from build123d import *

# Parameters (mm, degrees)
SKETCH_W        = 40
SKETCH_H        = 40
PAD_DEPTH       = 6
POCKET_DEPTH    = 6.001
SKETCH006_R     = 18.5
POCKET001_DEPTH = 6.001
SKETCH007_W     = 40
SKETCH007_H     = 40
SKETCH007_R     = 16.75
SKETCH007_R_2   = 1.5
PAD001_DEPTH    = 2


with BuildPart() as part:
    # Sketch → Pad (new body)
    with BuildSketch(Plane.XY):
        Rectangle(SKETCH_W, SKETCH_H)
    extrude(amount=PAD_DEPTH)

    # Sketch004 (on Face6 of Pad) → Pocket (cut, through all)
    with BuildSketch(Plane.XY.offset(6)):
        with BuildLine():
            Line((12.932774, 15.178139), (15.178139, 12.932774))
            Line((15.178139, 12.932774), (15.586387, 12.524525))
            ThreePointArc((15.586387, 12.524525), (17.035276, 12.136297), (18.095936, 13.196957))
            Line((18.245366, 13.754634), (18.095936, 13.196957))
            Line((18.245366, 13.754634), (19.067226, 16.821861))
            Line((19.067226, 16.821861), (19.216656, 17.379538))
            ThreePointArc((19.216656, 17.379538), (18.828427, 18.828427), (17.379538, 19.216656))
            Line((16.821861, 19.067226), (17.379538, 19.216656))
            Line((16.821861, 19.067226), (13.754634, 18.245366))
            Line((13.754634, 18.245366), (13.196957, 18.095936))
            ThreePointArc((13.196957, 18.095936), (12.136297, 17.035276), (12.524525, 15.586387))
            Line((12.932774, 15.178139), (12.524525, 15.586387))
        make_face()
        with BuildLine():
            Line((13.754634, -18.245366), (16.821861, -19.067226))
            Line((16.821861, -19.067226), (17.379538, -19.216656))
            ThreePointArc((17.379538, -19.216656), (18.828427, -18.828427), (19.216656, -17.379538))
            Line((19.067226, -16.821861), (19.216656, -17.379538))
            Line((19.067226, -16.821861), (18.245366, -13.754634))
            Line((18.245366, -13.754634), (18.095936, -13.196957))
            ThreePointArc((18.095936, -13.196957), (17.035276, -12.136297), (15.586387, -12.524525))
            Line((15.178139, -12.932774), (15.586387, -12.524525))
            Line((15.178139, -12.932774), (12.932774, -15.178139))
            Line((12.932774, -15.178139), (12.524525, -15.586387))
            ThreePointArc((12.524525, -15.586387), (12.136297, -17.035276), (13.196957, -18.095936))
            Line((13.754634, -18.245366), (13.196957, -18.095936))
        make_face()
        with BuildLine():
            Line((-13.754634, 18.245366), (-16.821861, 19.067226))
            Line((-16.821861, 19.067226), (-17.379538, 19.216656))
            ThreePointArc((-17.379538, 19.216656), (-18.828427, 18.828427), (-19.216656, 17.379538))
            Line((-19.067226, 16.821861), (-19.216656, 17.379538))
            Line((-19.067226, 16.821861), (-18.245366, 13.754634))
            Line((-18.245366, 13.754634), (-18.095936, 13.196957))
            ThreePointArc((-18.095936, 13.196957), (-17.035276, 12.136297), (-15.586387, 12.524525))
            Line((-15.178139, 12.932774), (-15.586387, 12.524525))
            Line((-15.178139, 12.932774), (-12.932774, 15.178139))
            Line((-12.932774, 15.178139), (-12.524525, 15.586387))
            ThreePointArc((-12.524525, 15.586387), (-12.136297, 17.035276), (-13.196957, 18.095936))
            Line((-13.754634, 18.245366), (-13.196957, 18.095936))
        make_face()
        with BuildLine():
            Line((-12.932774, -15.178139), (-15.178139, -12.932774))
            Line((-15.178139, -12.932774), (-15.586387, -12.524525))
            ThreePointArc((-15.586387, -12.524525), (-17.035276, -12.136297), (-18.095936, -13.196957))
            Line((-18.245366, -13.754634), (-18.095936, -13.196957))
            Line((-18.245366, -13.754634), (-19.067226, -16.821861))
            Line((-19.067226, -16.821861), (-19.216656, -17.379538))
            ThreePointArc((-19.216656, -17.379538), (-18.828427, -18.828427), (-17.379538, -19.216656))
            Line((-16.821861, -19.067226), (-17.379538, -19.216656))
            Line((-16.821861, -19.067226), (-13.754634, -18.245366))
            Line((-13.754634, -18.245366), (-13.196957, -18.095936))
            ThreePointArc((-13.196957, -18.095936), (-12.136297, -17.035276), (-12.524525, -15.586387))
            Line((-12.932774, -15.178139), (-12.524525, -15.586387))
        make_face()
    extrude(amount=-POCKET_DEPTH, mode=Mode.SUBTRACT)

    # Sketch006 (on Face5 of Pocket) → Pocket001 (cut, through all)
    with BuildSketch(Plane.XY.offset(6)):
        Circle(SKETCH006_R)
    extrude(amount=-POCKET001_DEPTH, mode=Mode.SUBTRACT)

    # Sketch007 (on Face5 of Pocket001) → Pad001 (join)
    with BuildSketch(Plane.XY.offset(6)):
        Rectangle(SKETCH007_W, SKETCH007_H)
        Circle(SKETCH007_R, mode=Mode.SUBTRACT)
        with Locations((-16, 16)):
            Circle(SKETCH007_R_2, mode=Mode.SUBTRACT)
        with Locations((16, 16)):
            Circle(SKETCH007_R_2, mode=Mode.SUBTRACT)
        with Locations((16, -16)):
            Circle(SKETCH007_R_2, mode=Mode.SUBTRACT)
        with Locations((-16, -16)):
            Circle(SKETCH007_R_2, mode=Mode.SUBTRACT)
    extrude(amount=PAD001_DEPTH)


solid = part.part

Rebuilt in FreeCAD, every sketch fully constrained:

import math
import FreeCAD as App
import Part
import Sketcher
Q = App.Units.Quantity

doc = App.newDocument("Part")
body = doc.addObject("PartDesign::Body", "Body")

# Sketch on XY plane
sketch1 = body.newObject("Sketcher::SketchObject", "Sketch")
sketch1.AttachmentSupport = (doc.getObject("XY_Plane"), [""])
sketch1.MapMode = "FlatFace"
sketch1.addGeometry([
    Part.LineSegment(App.Vector(-20, 20, 0), App.Vector(-20, -20, 0)),
    Part.LineSegment(App.Vector(-20, -20, 0), App.Vector(20, -20, 0)),
    Part.LineSegment(App.Vector(20, -20, 0), App.Vector(20, 20, 0)),
    Part.LineSegment(App.Vector(20, 20, 0), App.Vector(-20, 20, 0)),
], False)
sketch1.addConstraint([
    Sketcher.Constraint("Coincident", 0, 2, 1, 1),
    Sketcher.Constraint("Coincident", 1, 2, 2, 1),
    Sketcher.Constraint("Coincident", 2, 2, 3, 1),
    Sketcher.Constraint("Coincident", 3, 2, 0, 1),
    Sketcher.Constraint("Vertical", 0),
    Sketcher.Constraint("Horizontal", 1),
    Sketcher.Constraint("Vertical", 2),
    Sketcher.Constraint("Horizontal", 3),
    Sketcher.Constraint("Symmetric", 0, 2, 2, 2, -1, 1),
    Sketcher.Constraint("Equal", 3, 0),
    Sketcher.Constraint("DistanceX", 1, 1, 1, 2, Q("40 mm")),
])
pad1 = body.newObject("PartDesign::Pad", "Pad")
pad1.Profile = sketch1
pad1.Length = 6

# Sketch on XY plane
sketch2 = body.newObject("Sketcher::SketchObject", "Sketch001")
sketch2.AttachmentSupport = (doc.getObject("XY_Plane"), [""])
sketch2.MapMode = "FlatFace"
sketch2.AttachmentOffset = App.Placement(App.Vector(0, 0, 6), App.Rotation())
sketch2.addGeometry([
    Part.LineSegment(App.Vector(12.932774, 15.178139, 0), App.Vector(15.178139, 12.932774, 0)),  # 0
    Part.LineSegment(App.Vector(15.178139, 12.932774, 0), App.Vector(15.586387, 12.524525, 0)),  # 1
    Part.ArcOfCircle(Part.Circle(App.Vector(16.647047, 13.585186, 0), App.Vector(0, 0, 1), 1.5), math.radians(-134.999969), math.radians(-15.000016)),  # 2
    Part.LineSegment(App.Vector(18.095936, 13.196957, 0), App.Vector(18.245366, 13.754634, 0)),  # 3
    Part.LineSegment(App.Vector(18.245366, 13.754634, 0), App.Vector(19.067226, 16.821861, 0)),  # 4
    Part.LineSegment(App.Vector(19.067226, 16.821861, 0), App.Vector(19.216656, 17.379538, 0)),  # 5
    Part.ArcOfCircle(Part.Circle(App.Vector(17.767766, 17.767766, 0), App.Vector(0, 0, 1), 1.500001), math.radians(-14.999973), math.radians(104.999973)),  # 6
    Part.LineSegment(App.Vector(17.379538, 19.216656, 0), App.Vector(16.821861, 19.067226, 0)),  # 7
    Part.LineSegment(App.Vector(16.821861, 19.067226, 0), App.Vector(13.754634, 18.245366, 0)),  # 8
    Part.LineSegment(App.Vector(13.754634, 18.245366, 0), App.Vector(13.196957, 18.095936, 0)),  # 9
    Part.ArcOfCircle(Part.Circle(App.Vector(13.585186, 16.647047, 0), App.Vector(0, 0, 1), 1.5), math.radians(105.000016), math.radians(224.999969)),  # 10
    Part.LineSegment(App.Vector(12.524525, 15.586387, 0), App.Vector(12.932774, 15.178139, 0)),  # 11
    Part.LineSegment(App.Vector(13.754634, -18.245366, 0), App.Vector(16.821861, -19.067226, 0)),  # 12
    Part.LineSegment(App.Vector(16.821861, -19.067226, 0), App.Vector(17.379538, -19.216656, 0)),  # 13
    Part.ArcOfCircle(Part.Circle(App.Vector(17.767766, -17.767766, 0), App.Vector(0, 0, 1), 1.500001), math.radians(-104.999973), math.radians(14.999973)),  # 14
    Part.LineSegment(App.Vector(19.216656, -17.379538, 0), App.Vector(19.067226, -16.821861, 0)),  # 15
    Part.LineSegment(App.Vector(19.067226, -16.821861, 0), App.Vector(18.245366, -13.754634, 0)),  # 16
    Part.LineSegment(App.Vector(18.245366, -13.754634, 0), App.Vector(18.095936, -13.196957, 0)),  # 17
    Part.ArcOfCircle(Part.Circle(App.Vector(16.647047, -13.585186, 0), App.Vector(0, 0, 1), 1.5), math.radians(15.000016), math.radians(134.999969)),  # 18
    Part.LineSegment(App.Vector(15.586387, -12.524525, 0), App.Vector(15.178139, -12.932774, 0)),  # 19
    Part.LineSegment(App.Vector(15.178139, -12.932774, 0), App.Vector(12.932774, -15.178139, 0)),  # 20
    Part.LineSegment(App.Vector(12.932774, -15.178139, 0), App.Vector(12.524525, -15.586387, 0)),  # 21
    Part.ArcOfCircle(Part.Circle(App.Vector(13.585186, -16.647047, 0), App.Vector(0, 0, 1), 1.5), math.radians(135.000031), math.radians(254.999984)),  # 22
    Part.LineSegment(App.Vector(13.196957, -18.095936, 0), App.Vector(13.754634, -18.245366, 0)),  # 23
    Part.LineSegment(App.Vector(-13.754634, 18.245366, 0), App.Vector(-16.821861, 19.067226, 0)),  # 24
    Part.LineSegment(App.Vector(-16.821861, 19.067226, 0), App.Vector(-17.379538, 19.216656, 0)),  # 25
    Part.ArcOfCircle(Part.Circle(App.Vector(-17.767766, 17.767766, 0), App.Vector(0, 0, 1), 1.500001), math.radians(75.000027), math.radians(194.999973)),  # 26
    Part.LineSegment(App.Vector(-19.216656, 17.379538, 0), App.Vector(-19.067226, 16.821861, 0)),  # 27
    Part.LineSegment(App.Vector(-19.067226, 16.821861, 0), App.Vector(-18.245366, 13.754634, 0)),  # 28
    Part.LineSegment(App.Vector(-18.245366, 13.754634, 0), App.Vector(-18.095936, 13.196957, 0)),  # 29
    Part.ArcOfCircle(Part.Circle(App.Vector(-16.647047, 13.585186, 0), App.Vector(0, 0, 1), 1.5), math.radians(-164.999984), math.radians(-45.000031)),  # 30
    Part.LineSegment(App.Vector(-15.586387, 12.524525, 0), App.Vector(-15.178139, 12.932774, 0)),  # 31
    Part.LineSegment(App.Vector(-15.178139, 12.932774, 0), App.Vector(-12.932774, 15.178139, 0)),  # 32
    Part.LineSegment(App.Vector(-12.932774, 15.178139, 0), App.Vector(-12.524525, 15.586387, 0)),  # 33
    Part.ArcOfCircle(Part.Circle(App.Vector(-13.585186, 16.647047, 0), App.Vector(0, 0, 1), 1.5), math.radians(-44.999969), math.radians(74.999984)),  # 34
    Part.LineSegment(App.Vector(-13.196957, 18.095936, 0), App.Vector(-13.754634, 18.245366, 0)),  # 35
    Part.LineSegment(App.Vector(-12.932774, -15.178139, 0), App.Vector(-15.178139, -12.932774, 0)),  # 36
    Part.LineSegment(App.Vector(-15.178139, -12.932774, 0), App.Vector(-15.586387, -12.524525, 0)),  # 37
    Part.ArcOfCircle(Part.Circle(App.Vector(-16.647047, -13.585186, 0), App.Vector(0, 0, 1), 1.5), math.radians(45.000031), math.radians(164.999984)),  # 38
    Part.LineSegment(App.Vector(-18.095936, -13.196957, 0), App.Vector(-18.245366, -13.754634, 0)),  # 39
    Part.LineSegment(App.Vector(-18.245366, -13.754634, 0), App.Vector(-19.067226, -16.821861, 0)),  # 40
    Part.LineSegment(App.Vector(-19.067226, -16.821861, 0), App.Vector(-19.216656, -17.379538, 0)),  # 41
    Part.ArcOfCircle(Part.Circle(App.Vector(-17.767766, -17.767766, 0), App.Vector(0, 0, 1), 1.500001), math.radians(165.000027), math.radians(284.999973)),  # 42
    Part.LineSegment(App.Vector(-17.379538, -19.216656, 0), App.Vector(-16.821861, -19.067226, 0)),  # 43
    Part.LineSegment(App.Vector(-16.821861, -19.067226, 0), App.Vector(-13.754634, -18.245366, 0)),  # 44
    Part.LineSegment(App.Vector(-13.754634, -18.245366, 0), App.Vector(-13.196957, -18.095936, 0)),  # 45
    Part.ArcOfCircle(Part.Circle(App.Vector(-13.585186, -16.647047, 0), App.Vector(0, 0, 1), 1.5), math.radians(-74.999984), math.radians(44.999969)),  # 46
    Part.LineSegment(App.Vector(-12.524525, -15.586387, 0), App.Vector(-12.932774, -15.178139, 0)),  # 47
], False)
sketch2.addConstraint([
    Sketcher.Constraint("Coincident", 0, 2, 1, 1),
    Sketcher.Constraint("Tangent", 1, 2, 2, 1),
    Sketcher.Constraint("Tangent", 2, 2, 3, 1),
    Sketcher.Constraint("Coincident", 3, 2, 4, 1),
    Sketcher.Constraint("Coincident", 4, 2, 5, 1),
    Sketcher.Constraint("Tangent", 5, 2, 6, 1),
    Sketcher.Constraint("Tangent", 6, 2, 7, 1),
    Sketcher.Constraint("Coincident", 7, 2, 8, 1),
    Sketcher.Constraint("Coincident", 8, 2, 9, 1),
    Sketcher.Constraint("Tangent", 9, 2, 10, 1),
    Sketcher.Constraint("Tangent", 10, 2, 11, 1),
    Sketcher.Constraint("Coincident", 11, 2, 0, 1),
    Sketcher.Constraint("Coincident", 12, 2, 13, 1),
    Sketcher.Constraint("Tangent", 13, 2, 14, 1),
    Sketcher.Constraint("Tangent", 14, 2, 15, 1),
    Sketcher.Constraint("Coincident", 15, 2, 16, 1),
    Sketcher.Constraint("Coincident", 16, 2, 17, 1),
    Sketcher.Constraint("Tangent", 17, 2, 18, 1),
    Sketcher.Constraint("Tangent", 18, 2, 19, 1),
    Sketcher.Constraint("Coincident", 19, 2, 20, 1),
    Sketcher.Constraint("Coincident", 20, 2, 21, 1),
    Sketcher.Constraint("Tangent", 21, 2, 22, 1),
    Sketcher.Constraint("Tangent", 22, 2, 23, 1),
    Sketcher.Constraint("Coincident", 23, 2, 12, 1),
    Sketcher.Constraint("Coincident", 24, 2, 25, 1),
    Sketcher.Constraint("Tangent", 25, 2, 26, 1),
    Sketcher.Constraint("Tangent", 26, 2, 27, 1),
    Sketcher.Constraint("Coincident", 27, 2, 28, 1),
    Sketcher.Constraint("Coincident", 28, 2, 29, 1),
    Sketcher.Constraint("Tangent", 29, 2, 30, 1),
    Sketcher.Constraint("Tangent", 30, 2, 31, 1),
    Sketcher.Constraint("Coincident", 31, 2, 32, 1),
    Sketcher.Constraint("Coincident", 32, 2, 33, 1),
    Sketcher.Constraint("Tangent", 33, 2, 34, 1),
    Sketcher.Constraint("Tangent", 34, 2, 35, 1),
    Sketcher.Constraint("Coincident", 35, 2, 24, 1),
    Sketcher.Constraint("Coincident", 36, 2, 37, 1),
    Sketcher.Constraint("Tangent", 37, 2, 38, 1),
    Sketcher.Constraint("Tangent", 38, 2, 39, 1),
    Sketcher.Constraint("Coincident", 39, 2, 40, 1),
    Sketcher.Constraint("Coincident", 40, 2, 41, 1),
    Sketcher.Constraint("Tangent", 41, 2, 42, 1),
    Sketcher.Constraint("Tangent", 42, 2, 43, 1),
    Sketcher.Constraint("Coincident", 43, 2, 44, 1),
    Sketcher.Constraint("Coincident", 44, 2, 45, 1),
    Sketcher.Constraint("Tangent", 45, 2, 46, 1),
    Sketcher.Constraint("Tangent", 46, 2, 47, 1),
    Sketcher.Constraint("Coincident", 47, 2, 36, 1),
    Sketcher.Constraint("Equal", 2, 6),
    Sketcher.Constraint("Equal", 6, 10),
    Sketcher.Constraint("Equal", 10, 14),
    Sketcher.Constraint("Equal", 14, 18),
    Sketcher.Constraint("Equal", 18, 22),
    Sketcher.Constraint("Equal", 22, 26),
    Sketcher.Constraint("Equal", 26, 30),
    Sketcher.Constraint("Equal", 30, 34),
    Sketcher.Constraint("Equal", 34, 38),
    Sketcher.Constraint("Equal", 38, 42),
    Sketcher.Constraint("Equal", 42, 46),
    Sketcher.Constraint("Symmetric", 14, 3, 26, 3, -1, 1),
    Sketcher.Constraint("Symmetric", 18, 3, 30, 3, -1, 1),
    Sketcher.Constraint("Symmetric", 22, 3, 34, 3, -1, 1),
    Sketcher.Constraint("Symmetric", 2, 3, 38, 3, -1, 1),
    Sketcher.Constraint("Symmetric", 6, 3, 42, 3, -1, 1),
    Sketcher.Constraint("Symmetric", 10, 3, 46, 3, -1, 1),
    Sketcher.Constraint("Symmetric", 12, 2, 24, 2, -1, 1),
    Sketcher.Constraint("Symmetric", 15, 2, 27, 2, -1, 1),
    Sketcher.Constraint("Symmetric", 16, 2, 28, 2, -1, 1),
    Sketcher.Constraint("Symmetric", 19, 2, 31, 2, -1, 1),
    Sketcher.Constraint("Symmetric", 20, 2, 32, 2, -1, 1),
    Sketcher.Constraint("Symmetric", 23, 2, 35, 2, -1, 1),
    Sketcher.Constraint("Symmetric", 0, 2, 36, 2, -1, 1),
    Sketcher.Constraint("Symmetric", 3, 2, 39, 2, -1, 1),
    Sketcher.Constraint("Symmetric", 4, 2, 40, 2, -1, 1),
    Sketcher.Constraint("Symmetric", 7, 2, 43, 2, -1, 1),
    Sketcher.Constraint("Symmetric", 8, 2, 44, 2, -1, 1),
    Sketcher.Constraint("Symmetric", 11, 2, 47, 2, -1, 1),
    Sketcher.Constraint("Symmetric", 6, 3, 26, 3, -2),
    Sketcher.Constraint("Symmetric", 2, 3, 30, 3, -2),
    Sketcher.Constraint("Symmetric", 10, 3, 34, 3, -2),
    Sketcher.Constraint("Symmetric", 7, 2, 24, 2, -2),
    Sketcher.Constraint("Symmetric", 4, 2, 27, 2, -2),
    Sketcher.Constraint("Symmetric", 3, 2, 28, 2, -2),
    Sketcher.Constraint("Symmetric", 0, 2, 31, 2, -2),
    Sketcher.Constraint("Symmetric", 11, 2, 32, 2, -2),
    Sketcher.Constraint("Symmetric", 8, 2, 35, 2, -2),
    Sketcher.Constraint("Parallel", 0, 1),
    Sketcher.Constraint("Parallel", 3, 4),
    Sketcher.Constraint("Parallel", 4, 5),
    Sketcher.Constraint("Parallel", 7, 8),
    Sketcher.Constraint("Parallel", 8, 9),
    Sketcher.Constraint("Parallel", 0, 11),
    Sketcher.Constraint("Perpendicular", 5, 12),
    Sketcher.Constraint("Perpendicular", 11, 19),
    Sketcher.Constraint("Equal", 1, 3),
    Sketcher.Constraint("Equal", 0, 4),
    Sketcher.Constraint("Equal", 3, 5),
    Sketcher.Constraint("Equal", 5, 7),
    Sketcher.Constraint("Equal", 4, 8),
    Sketcher.Constraint("Equal", 9, 11),
    Sketcher.Constraint("Radius", 2, Q("1.5 mm")),
    Sketcher.Constraint("DistanceX", 10, 3, 1, 2, Q("2.001201 mm")),
    Sketcher.Constraint("DistanceX", 6, 3, 3, 2, Q("0.4776 mm")),
    Sketcher.Constraint("DistanceY", 36, 2, 30, 2, Q("25.457299 mm")),
    Sketcher.Constraint("DistanceX", -1, 1, 0, 2, Q("15.178139 mm")),
])
pocket1 = body.newObject("PartDesign::Pocket", "Pocket")
pocket1.Profile = sketch2
pocket1.Type = "ThroughAll"

# Sketch on XY plane
sketch3 = body.newObject("Sketcher::SketchObject", "Sketch002")
sketch3.AttachmentSupport = (doc.getObject("XY_Plane"), [""])
sketch3.MapMode = "FlatFace"
sketch3.AttachmentOffset = App.Placement(App.Vector(0, 0, 6), App.Rotation())
sketch3.addGeometry(Part.Circle(App.Vector(0, 0, 0), App.Vector(0, 0, 1), 18.5), False)
sketch3.addConstraint([
    Sketcher.Constraint("Coincident", 0, 3, -1, 1),
    Sketcher.Constraint("Diameter", 0, Q("37 mm")),
])
pocket2 = body.newObject("PartDesign::Pocket", "Pocket001")
pocket2.Profile = sketch3
pocket2.Type = "ThroughAll"

# Sketch on XY plane
sketch4 = body.newObject("Sketcher::SketchObject", "Sketch003")
sketch4.AttachmentSupport = (doc.getObject("XY_Plane"), [""])
sketch4.MapMode = "FlatFace"
sketch4.AttachmentOffset = App.Placement(App.Vector(0, 0, 6), App.Rotation())
sketch4.addGeometry([
    Part.LineSegment(App.Vector(-20, 20, 0), App.Vector(-20, -20, 0)),  # 0
    Part.LineSegment(App.Vector(-20, -20, 0), App.Vector(20, -20, 0)),  # 1
    Part.LineSegment(App.Vector(20, -20, 0), App.Vector(20, 20, 0)),  # 2
    Part.LineSegment(App.Vector(20, 20, 0), App.Vector(-20, 20, 0)),  # 3
    Part.Circle(App.Vector(-16, -16, 0), App.Vector(0, 0, 1), 1.5),  # 4
    Part.Circle(App.Vector(16, -16, 0), App.Vector(0, 0, 1), 1.5),  # 5
    Part.Circle(App.Vector(-16, 16, 0), App.Vector(0, 0, 1), 1.5),  # 6
    Part.Circle(App.Vector(0, 0, 0), App.Vector(0, 0, 1), 16.75),  # 7
    Part.Circle(App.Vector(16, 16, 0), App.Vector(0, 0, 1), 1.5),  # 8
], False)
sketch4.addConstraint([
    Sketcher.Constraint("Coincident", 0, 2, 1, 1),
    Sketcher.Constraint("Coincident", 1, 2, 2, 1),
    Sketcher.Constraint("Coincident", 2, 2, 3, 1),
    Sketcher.Constraint("Coincident", 3, 2, 0, 1),
    Sketcher.Constraint("Vertical", 0),
    Sketcher.Constraint("Horizontal", 1),
    Sketcher.Constraint("Vertical", 2),
    Sketcher.Constraint("Horizontal", 3),
    Sketcher.Constraint("Coincident", 7, 3, -1, 1),
    Sketcher.Constraint("Equal", 4, 5),
    Sketcher.Constraint("Equal", 5, 6),
    Sketcher.Constraint("Equal", 6, 8),
    Sketcher.Constraint("Symmetric", 5, 3, 6, 3, -1, 1),
    Sketcher.Constraint("Symmetric", 4, 3, 8, 3, -1, 1),
    Sketcher.Constraint("Symmetric", 0, 2, 2, 2, -1, 1),
    Sketcher.Constraint("Symmetric", 4, 3, 5, 3, -2),
    Sketcher.Constraint("Equal", 3, 0),
    Sketcher.Constraint("Diameter", 4, Q("3 mm")),
    Sketcher.Constraint("Diameter", 7, Q("33.5 mm")),
    Sketcher.Constraint("DistanceX", 1, 1, 1, 2, Q("40 mm")),
    Sketcher.Constraint("DistanceX", 4, 3, -1, 1, Q("16 mm")),
    Sketcher.Constraint("DistanceY", 4, 3, -1, 1, Q("16 mm")),
])
pad2 = body.newObject("PartDesign::Pad", "Pad001")
pad2.Profile = sketch4
pad2.Length = 2

doc.recompute()
